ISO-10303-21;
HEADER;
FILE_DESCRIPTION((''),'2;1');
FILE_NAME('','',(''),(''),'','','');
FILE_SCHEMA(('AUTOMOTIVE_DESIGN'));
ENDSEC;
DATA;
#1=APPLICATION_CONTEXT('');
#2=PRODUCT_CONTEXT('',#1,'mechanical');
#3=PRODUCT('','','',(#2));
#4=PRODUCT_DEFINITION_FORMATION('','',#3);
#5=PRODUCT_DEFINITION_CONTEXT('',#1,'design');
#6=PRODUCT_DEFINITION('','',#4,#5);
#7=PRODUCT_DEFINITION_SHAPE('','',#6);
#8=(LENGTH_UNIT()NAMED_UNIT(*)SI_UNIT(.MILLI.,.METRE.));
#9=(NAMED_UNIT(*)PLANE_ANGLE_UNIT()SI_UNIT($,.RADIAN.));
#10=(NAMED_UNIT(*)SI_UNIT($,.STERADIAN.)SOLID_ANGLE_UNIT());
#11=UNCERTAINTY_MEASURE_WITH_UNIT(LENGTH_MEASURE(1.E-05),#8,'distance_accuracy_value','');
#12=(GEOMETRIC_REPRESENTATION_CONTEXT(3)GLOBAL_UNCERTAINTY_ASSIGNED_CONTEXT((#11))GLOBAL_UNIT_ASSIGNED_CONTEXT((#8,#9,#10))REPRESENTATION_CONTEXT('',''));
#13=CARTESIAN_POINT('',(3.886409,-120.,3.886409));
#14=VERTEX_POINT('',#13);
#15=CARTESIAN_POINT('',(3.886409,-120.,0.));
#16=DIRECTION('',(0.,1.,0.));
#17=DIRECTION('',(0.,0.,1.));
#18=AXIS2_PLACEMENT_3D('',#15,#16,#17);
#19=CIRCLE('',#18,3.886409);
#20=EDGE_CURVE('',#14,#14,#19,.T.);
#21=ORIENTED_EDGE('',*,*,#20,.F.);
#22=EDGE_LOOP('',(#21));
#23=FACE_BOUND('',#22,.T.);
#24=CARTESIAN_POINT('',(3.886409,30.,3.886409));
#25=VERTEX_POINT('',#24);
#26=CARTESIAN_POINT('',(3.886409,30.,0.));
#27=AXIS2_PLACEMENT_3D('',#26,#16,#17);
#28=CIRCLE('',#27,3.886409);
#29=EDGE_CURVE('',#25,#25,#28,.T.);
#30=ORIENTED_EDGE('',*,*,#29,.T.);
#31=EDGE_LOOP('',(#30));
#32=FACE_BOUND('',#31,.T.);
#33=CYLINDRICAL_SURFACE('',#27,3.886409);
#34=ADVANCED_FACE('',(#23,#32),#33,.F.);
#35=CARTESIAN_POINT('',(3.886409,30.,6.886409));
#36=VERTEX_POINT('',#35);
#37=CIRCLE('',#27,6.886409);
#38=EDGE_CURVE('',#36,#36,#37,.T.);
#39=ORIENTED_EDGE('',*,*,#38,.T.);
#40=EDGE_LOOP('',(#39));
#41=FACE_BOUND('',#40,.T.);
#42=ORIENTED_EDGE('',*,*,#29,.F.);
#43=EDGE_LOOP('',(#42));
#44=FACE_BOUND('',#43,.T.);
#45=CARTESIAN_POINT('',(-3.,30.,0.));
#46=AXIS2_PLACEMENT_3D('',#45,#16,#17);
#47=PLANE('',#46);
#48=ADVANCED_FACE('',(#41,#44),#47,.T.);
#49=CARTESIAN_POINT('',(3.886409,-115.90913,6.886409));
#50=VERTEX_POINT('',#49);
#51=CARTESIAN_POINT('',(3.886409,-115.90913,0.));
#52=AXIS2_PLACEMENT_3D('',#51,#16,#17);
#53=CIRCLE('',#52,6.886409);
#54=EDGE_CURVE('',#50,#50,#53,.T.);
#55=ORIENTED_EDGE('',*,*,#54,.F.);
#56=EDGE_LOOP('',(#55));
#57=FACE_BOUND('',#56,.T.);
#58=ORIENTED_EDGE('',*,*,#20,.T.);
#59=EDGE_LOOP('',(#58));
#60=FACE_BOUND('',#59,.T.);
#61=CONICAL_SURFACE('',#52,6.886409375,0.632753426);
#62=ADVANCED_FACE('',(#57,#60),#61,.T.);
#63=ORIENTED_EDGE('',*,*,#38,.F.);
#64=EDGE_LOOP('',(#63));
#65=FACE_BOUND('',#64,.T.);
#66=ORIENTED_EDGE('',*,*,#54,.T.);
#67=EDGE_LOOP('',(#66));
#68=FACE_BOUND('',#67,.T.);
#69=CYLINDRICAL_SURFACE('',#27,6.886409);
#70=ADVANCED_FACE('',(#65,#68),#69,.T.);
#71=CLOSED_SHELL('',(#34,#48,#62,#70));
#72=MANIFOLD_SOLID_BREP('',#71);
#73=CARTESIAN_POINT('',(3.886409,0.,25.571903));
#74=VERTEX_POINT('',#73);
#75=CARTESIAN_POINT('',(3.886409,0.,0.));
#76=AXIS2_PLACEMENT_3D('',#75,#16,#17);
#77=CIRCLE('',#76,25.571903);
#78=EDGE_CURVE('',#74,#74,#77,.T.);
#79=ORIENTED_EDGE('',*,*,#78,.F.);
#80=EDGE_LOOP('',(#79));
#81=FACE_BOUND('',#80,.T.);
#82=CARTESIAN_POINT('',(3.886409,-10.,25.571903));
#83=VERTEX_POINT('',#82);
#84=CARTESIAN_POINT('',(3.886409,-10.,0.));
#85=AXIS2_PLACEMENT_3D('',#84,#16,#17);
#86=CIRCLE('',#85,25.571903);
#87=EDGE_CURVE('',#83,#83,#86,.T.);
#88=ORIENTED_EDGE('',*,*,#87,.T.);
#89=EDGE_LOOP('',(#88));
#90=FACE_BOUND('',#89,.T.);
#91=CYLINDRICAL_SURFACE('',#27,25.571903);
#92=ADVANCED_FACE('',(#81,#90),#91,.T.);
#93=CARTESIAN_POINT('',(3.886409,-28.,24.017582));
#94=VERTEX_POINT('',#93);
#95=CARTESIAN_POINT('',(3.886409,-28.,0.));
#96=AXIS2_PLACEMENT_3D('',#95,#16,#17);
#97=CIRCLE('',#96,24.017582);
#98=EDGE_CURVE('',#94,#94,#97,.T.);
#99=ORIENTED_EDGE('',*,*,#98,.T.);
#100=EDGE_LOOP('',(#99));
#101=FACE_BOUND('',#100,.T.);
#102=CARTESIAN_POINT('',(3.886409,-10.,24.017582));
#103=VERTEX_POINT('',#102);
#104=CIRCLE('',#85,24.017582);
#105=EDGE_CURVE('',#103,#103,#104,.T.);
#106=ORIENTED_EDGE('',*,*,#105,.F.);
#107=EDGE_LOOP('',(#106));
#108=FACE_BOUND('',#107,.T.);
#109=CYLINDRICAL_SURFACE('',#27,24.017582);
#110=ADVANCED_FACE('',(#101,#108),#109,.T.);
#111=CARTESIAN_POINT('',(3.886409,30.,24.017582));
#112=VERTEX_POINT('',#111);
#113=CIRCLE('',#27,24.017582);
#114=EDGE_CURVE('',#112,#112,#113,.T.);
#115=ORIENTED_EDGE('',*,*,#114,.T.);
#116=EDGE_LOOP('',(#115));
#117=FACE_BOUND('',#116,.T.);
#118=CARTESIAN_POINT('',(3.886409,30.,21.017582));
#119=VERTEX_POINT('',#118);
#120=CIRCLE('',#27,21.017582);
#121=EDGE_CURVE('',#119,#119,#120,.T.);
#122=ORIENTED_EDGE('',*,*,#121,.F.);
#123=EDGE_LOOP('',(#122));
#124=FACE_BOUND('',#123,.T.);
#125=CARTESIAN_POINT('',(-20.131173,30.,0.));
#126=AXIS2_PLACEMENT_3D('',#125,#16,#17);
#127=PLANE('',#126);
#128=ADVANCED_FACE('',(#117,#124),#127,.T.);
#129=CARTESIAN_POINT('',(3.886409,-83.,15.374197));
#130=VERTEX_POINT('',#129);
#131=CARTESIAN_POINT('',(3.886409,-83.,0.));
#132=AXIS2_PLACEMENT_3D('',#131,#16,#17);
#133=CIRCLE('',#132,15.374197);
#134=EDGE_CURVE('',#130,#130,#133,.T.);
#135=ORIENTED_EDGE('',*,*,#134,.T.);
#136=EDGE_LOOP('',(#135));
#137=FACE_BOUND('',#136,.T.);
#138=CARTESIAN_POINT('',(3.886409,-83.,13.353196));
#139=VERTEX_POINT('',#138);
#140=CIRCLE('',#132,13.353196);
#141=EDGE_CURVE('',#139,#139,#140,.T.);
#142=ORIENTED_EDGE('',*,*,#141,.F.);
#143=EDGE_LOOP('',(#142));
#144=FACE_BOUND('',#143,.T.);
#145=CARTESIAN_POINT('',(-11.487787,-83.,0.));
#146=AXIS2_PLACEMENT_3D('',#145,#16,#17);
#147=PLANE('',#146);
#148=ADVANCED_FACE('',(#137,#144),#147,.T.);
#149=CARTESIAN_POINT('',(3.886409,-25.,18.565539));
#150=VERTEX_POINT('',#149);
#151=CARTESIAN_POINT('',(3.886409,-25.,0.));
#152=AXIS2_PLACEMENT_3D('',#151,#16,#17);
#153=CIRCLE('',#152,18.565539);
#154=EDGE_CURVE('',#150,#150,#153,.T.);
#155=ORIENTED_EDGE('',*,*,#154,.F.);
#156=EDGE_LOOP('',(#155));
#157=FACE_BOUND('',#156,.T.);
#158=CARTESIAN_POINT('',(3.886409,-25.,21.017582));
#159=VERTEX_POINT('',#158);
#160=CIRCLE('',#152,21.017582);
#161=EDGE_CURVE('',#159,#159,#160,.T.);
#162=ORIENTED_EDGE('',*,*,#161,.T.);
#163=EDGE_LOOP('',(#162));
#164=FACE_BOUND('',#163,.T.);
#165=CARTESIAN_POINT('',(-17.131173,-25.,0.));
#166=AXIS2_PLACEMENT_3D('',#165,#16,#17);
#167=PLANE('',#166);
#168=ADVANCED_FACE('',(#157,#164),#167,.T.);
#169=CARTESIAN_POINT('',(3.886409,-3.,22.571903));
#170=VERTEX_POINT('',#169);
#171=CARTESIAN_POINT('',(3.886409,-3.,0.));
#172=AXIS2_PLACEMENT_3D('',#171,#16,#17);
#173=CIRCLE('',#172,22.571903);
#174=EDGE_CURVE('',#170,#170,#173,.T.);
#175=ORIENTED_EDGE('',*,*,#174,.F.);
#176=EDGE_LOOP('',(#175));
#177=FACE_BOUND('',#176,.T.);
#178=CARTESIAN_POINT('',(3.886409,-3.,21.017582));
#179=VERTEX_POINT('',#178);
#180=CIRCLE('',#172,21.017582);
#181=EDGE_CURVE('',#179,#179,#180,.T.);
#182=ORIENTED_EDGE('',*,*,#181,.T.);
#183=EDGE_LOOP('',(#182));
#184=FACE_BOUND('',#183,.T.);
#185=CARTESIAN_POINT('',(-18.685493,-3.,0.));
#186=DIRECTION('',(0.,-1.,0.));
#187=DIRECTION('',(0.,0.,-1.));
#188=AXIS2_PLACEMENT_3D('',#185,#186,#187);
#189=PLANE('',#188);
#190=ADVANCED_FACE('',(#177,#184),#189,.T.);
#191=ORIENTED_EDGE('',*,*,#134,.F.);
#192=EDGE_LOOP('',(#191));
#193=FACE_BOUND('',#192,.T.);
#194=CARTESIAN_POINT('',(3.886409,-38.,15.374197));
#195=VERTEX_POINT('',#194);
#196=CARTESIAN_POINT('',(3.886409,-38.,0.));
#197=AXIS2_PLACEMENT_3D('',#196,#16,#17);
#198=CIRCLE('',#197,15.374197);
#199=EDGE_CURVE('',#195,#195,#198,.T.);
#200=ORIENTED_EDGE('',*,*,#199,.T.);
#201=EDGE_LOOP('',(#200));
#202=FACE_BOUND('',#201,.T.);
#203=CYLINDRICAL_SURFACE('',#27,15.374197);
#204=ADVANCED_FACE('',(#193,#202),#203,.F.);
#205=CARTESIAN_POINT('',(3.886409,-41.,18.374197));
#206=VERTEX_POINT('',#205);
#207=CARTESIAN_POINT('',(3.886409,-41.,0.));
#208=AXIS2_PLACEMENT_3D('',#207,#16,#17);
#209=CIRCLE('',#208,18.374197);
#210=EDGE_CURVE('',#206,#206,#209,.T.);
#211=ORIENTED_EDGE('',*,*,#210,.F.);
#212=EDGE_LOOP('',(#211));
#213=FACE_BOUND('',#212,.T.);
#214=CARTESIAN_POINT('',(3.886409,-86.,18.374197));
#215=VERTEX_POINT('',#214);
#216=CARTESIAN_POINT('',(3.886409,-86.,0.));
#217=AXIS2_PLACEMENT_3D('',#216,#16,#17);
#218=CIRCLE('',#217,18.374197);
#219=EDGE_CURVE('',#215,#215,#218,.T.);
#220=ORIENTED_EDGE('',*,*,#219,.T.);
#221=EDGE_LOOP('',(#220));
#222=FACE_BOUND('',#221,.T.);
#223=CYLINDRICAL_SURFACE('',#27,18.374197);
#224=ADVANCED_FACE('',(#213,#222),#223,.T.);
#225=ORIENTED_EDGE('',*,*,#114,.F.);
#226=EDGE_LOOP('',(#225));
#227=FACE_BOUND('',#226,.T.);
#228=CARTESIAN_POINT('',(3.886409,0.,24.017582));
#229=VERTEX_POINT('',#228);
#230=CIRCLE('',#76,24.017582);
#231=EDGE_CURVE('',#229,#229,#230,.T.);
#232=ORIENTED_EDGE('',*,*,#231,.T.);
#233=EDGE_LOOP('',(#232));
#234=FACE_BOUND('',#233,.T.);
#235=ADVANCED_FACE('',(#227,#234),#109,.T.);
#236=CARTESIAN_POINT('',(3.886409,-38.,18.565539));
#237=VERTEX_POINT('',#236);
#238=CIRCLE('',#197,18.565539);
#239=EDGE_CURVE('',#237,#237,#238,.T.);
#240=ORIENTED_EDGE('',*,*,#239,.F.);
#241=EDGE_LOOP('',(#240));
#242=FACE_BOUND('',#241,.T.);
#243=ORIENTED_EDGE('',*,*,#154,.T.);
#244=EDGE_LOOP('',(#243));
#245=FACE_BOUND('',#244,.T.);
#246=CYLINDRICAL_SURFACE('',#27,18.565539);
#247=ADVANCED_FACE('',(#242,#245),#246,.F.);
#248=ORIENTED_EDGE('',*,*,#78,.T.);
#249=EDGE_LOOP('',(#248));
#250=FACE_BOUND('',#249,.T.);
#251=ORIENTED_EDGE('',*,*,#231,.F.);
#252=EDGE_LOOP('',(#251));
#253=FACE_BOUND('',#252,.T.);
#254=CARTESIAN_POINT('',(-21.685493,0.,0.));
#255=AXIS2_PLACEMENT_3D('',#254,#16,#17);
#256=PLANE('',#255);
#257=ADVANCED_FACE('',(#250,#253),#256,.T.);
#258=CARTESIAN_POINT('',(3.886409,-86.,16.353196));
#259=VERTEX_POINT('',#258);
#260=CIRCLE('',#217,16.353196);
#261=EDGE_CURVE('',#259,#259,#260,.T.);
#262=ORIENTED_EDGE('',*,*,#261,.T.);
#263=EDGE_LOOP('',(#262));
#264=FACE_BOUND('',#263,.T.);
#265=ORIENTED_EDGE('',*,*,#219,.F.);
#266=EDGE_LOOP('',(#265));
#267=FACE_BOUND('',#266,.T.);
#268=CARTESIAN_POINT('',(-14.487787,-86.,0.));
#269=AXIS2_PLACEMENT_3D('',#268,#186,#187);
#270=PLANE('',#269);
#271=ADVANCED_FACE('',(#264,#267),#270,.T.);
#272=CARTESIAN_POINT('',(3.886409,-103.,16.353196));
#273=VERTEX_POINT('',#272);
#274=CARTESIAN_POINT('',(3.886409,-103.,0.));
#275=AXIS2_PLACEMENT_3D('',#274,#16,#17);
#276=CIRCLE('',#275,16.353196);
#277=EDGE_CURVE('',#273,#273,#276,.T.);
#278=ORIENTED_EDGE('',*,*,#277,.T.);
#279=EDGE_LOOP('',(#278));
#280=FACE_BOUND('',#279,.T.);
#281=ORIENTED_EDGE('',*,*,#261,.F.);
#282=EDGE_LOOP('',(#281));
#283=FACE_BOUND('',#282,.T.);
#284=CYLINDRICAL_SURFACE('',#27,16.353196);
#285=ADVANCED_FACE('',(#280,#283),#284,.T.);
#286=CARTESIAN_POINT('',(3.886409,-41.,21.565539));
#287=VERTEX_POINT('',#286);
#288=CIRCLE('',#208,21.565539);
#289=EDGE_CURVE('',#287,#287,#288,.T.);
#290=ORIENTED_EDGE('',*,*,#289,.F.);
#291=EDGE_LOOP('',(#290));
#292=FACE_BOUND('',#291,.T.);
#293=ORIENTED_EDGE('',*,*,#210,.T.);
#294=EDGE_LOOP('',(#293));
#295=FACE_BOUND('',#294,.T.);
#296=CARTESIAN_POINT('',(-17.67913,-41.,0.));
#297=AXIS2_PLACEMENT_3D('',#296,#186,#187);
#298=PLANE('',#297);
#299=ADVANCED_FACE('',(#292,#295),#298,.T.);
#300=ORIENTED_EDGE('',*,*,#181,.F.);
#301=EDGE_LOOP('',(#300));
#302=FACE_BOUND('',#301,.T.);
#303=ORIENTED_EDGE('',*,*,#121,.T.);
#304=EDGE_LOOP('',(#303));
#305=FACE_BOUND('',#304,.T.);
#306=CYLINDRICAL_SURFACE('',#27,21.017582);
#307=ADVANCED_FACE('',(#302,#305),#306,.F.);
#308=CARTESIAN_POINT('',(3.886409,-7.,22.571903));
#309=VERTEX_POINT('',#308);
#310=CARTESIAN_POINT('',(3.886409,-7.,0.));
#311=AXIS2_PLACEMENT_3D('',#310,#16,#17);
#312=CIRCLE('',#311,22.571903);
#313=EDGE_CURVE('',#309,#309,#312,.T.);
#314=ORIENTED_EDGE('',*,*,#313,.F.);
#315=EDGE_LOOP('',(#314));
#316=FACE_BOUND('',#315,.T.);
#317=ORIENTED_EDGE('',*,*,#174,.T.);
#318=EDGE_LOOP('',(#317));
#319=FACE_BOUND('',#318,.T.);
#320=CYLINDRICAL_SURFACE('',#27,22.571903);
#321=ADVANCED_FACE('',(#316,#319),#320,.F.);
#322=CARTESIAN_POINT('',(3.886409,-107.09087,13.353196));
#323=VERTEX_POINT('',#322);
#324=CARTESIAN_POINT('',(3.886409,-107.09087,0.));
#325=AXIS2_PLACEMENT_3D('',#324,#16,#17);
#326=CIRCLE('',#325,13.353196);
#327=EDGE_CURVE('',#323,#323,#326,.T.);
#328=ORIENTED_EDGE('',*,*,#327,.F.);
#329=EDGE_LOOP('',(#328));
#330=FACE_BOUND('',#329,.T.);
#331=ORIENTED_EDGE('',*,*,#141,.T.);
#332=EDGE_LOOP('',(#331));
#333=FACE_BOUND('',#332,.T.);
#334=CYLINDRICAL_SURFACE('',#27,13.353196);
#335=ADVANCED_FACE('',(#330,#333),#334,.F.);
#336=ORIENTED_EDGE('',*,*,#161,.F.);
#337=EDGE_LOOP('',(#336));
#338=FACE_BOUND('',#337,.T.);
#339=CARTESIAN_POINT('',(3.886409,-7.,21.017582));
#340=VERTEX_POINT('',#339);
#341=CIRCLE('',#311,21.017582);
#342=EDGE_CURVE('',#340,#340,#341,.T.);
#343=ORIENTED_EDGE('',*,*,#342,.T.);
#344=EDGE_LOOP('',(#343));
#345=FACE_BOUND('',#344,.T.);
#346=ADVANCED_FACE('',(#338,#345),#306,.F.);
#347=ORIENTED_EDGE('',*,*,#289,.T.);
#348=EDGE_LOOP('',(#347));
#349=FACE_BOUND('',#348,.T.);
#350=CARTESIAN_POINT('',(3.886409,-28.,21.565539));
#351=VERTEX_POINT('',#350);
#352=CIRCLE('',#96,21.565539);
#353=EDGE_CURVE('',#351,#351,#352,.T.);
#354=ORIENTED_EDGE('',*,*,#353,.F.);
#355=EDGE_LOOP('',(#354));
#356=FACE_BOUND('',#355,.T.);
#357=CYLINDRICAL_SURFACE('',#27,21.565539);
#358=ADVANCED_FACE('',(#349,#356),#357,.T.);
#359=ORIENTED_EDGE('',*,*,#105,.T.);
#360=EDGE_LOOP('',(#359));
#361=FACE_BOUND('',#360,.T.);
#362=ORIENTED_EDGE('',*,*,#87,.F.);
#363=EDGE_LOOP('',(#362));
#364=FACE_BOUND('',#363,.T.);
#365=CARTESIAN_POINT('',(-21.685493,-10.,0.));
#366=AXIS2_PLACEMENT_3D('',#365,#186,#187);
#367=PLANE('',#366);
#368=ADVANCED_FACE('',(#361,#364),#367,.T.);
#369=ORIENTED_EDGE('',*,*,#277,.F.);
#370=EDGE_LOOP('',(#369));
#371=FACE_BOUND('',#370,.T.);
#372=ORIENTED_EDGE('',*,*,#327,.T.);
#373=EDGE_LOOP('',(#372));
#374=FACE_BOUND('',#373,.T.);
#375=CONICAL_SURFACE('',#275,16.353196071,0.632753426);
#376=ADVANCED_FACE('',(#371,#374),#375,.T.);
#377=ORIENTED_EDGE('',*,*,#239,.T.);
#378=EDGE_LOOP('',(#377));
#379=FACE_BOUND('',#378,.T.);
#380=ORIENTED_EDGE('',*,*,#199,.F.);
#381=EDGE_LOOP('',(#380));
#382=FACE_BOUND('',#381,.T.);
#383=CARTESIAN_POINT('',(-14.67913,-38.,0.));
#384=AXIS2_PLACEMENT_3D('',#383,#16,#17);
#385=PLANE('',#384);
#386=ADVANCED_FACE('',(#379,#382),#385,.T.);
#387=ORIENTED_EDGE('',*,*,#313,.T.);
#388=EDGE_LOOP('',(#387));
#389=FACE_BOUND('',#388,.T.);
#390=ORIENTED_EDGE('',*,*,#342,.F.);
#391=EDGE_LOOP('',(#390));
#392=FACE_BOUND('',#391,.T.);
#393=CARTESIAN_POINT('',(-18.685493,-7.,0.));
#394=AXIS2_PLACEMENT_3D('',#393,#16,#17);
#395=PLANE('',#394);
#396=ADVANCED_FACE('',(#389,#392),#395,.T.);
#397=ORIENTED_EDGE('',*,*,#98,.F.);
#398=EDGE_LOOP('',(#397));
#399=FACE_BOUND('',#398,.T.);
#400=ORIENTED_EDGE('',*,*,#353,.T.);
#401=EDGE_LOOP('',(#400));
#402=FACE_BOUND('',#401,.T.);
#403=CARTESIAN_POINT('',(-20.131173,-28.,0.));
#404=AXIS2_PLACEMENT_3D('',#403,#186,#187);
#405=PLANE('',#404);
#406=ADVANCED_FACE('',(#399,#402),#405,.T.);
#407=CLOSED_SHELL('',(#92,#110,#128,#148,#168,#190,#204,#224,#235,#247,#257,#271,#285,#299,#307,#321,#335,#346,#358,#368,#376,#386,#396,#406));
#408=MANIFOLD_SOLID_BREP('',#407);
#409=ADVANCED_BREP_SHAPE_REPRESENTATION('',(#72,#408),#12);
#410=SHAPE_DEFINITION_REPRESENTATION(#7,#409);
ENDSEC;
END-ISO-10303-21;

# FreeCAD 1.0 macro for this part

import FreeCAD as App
import Part
import Sketcher

V = App.Vector
Q = App.Units.Quantity


def add_polygon(sketch, points):
    """Adds a closed chain of lines whose ends are joined by coincident constraints."""
    first, n = sketch.GeometryCount, len(points)
    for a, b in zip(points, points[1:] + points[:1]):
        sketch.addGeometry(Part.LineSegment(App.Vector(*a, 0), App.Vector(*b, 0)), False)
    for i in range(n):
        sketch.addConstraint(Sketcher.Constraint("Coincident", first + i, 2, first + (i + 1) % n, 1))

doc = App.newDocument("Part")
params = doc.addObject("Spreadsheet::Sheet", "Params")
for row, (alias, value) in enumerate([
    ("sketch1_width", "3 mm"),
    ("sketch1_height", "30 mm"),
    ("sketch1_height2", "10 mm"),
    ("sketch1_height3", "18 mm"),
    ("sketch1_height4", "13 mm"),
    ("revolution_angle", "360 deg"),
], start=1):
    params.set(f"A{row}", alias)
    params.set(f"B{row}", "=" + value)
    params.setAlias(f"B{row}", alias)

body = doc.addObject("PartDesign::Body", "Body")
body.AllowCompound = True

sketch1 = body.newObject("Sketcher::SketchObject", "Sketch")
sketch1.AttachmentSupport = (doc.getObject("XY_Plane"), [""])
sketch1.MapMode = "FlatFace"
add_polygon(sketch1, [(-20.131173, 30), (-20.131173, 0), (-21.685493, 0), (-21.685493, -10), (-20.131173, -10), (-20.131173, -28), (-17.67913, -28), (-17.67913, -41), (-14.487787, -41), (-14.487787, -86), (-12.466787, -86), (-12.466787, -103), (-9.466787, -107.09087), (-9.466787, -83), (-11.487787, -83), (-11.487787, -38), (-14.67913, -38), (-14.67913, -25), (-17.131173, -25), (-17.131173, -7), (-18.685493, -7), (-18.685493, -3), (-17.131173, -3), (-17.131173, 30)])
add_polygon(sketch1, [(0, -120), (0, 30), (-3, 30), (-3, -115.90913)])
sketch1.addGeometry(Part.LineSegment(V(3.886409, 30, 0), V(3.886409, -120, 0)), True)
sketch1.addConstraint([
    Sketcher.Constraint("Vertical", 0),
    Sketcher.Constraint("Horizontal", 1),
    Sketcher.Constraint("Vertical", 2),
    Sketcher.Constraint("Horizontal", 3),
    Sketcher.Constraint("Vertical", 4),
    Sketcher.Constraint("Horizontal", 5),
    Sketcher.Constraint("Vertical", 6),
    Sketcher.Constraint("Horizontal", 7),
    Sketcher.Constraint("Vertical", 8),
    Sketcher.Constraint("Horizontal", 9),
    Sketcher.Constraint("Vertical", 10),
    Sketcher.Constraint("Vertical", 12),
    Sketcher.Constraint("Horizontal", 13),
    Sketcher.Constraint("Vertical", 14),
    Sketcher.Constraint("Horizontal", 15),
    Sketcher.Constraint("Vertical", 16),
    Sketcher.Constraint("Horizontal", 17),
    Sketcher.Constraint("Vertical", 18),
    Sketcher.Constraint("Horizontal", 19),
    Sketcher.Constraint("Vertical", 20),
    Sketcher.Constraint("Horizontal", 21),
    Sketcher.Constraint("Vertical", 22),
    Sketcher.Constraint("Horizontal", 23),
    Sketcher.Constraint("Vertical", 24),
    Sketcher.Constraint("Horizontal", 25),
    Sketcher.Constraint("Vertical", 26),
    Sketcher.Constraint("Vertical", 28),
    Sketcher.Constraint("PointOnObject", 0, 2, -1),
    Sketcher.Constraint("PointOnObject", 24, 2, -2),
    Sketcher.Constraint("Parallel", 11, 27),
    Sketcher.Constraint("Horizontal", 23, 2, 24, 2),
    Sketcher.Constraint("Horizontal", 25, 2, 28, 1),
    Sketcher.Constraint("Horizontal", 27, 2, 28, 2),
    Sketcher.Constraint("Vertical", 0, 2, 3, 2),
    Sketcher.Constraint("Vertical", 18, 2, 21, 2),
    Sketcher.Constraint("Equal", 9, 13),
    Sketcher.Constraint("Equal", 7, 15),
    Sketcher.Constraint("Equal", 5, 17),
    Sketcher.Constraint("Equal", 3, 19),
    Sketcher.Constraint("Equal", 23, 25),
    Sketcher.Constraint("Equal", 8, 14),
    Sketcher.Constraint("Equal", 6, 16),
    Sketcher.Constraint("Equal", 4, 18),
    Sketcher.Constraint("DistanceX", 23, 2, 23, 1, Q("3 mm")),
    Sketcher.Constraint("DistanceY", 0, 2, 0, 1, Q("30 mm")),
    Sketcher.Constraint("DistanceY", 2, 2, 2, 1, Q("10 mm")),
    Sketcher.Constraint("DistanceY", 4, 2, 4, 1, Q("18 mm")),
    Sketcher.Constraint("DistanceY", 6, 2, 6, 1, Q("13 mm")),
    Sketcher.Constraint("DistanceY", 8, 2, 8, 1, Q("45 mm")),
    Sketcher.Constraint("DistanceY", 10, 2, 10, 1, Q("17 mm")),
    Sketcher.Constraint("DistanceY", 20, 1, 20, 2, Q("4 mm")),
    Sketcher.Constraint("DistanceY", 22, 1, 22, 2, Q("33 mm")),
    Sketcher.Constraint("DistanceY", 24, 1, 24, 2, Q("150 mm")),
    Sketcher.Constraint("DistanceX", 9, 1, 9, 2, Q("2.021 mm")),
    Sketcher.Constraint("DistanceX", 1, 2, 1, 1, Q("1.554321 mm")),
    Sketcher.Constraint("DistanceY", 12, 1, 12, 2, Q("24.09087 mm")),
    Sketcher.Constraint("DistanceX", 5, 1, 5, 2, Q("2.452043 mm")),
    Sketcher.Constraint("DistanceX", 7, 1, 7, 2, Q("3.191343 mm")),
    Sketcher.Constraint("DistanceX", 5, 2, -1, 1, Q("17.67913 mm")),
    Sketcher.Constraint("DistanceX", -1, 1, 28, 1, Q("3.886409 mm")),
])
sketch1.setExpression("Constraints[71]", "Params.sketch1_width")
sketch1.setExpression("Constraints[72]", "Params.sketch1_height")
sketch1.setExpression("Constraints[73]", "Params.sketch1_height2")
sketch1.setExpression("Constraints[74]", "Params.sketch1_height3")
sketch1.setExpression("Constraints[75]", "Params.sketch1_height4")
revolution = body.newObject("PartDesign::Revolution", "Revolution")
revolution.Profile = sketch1
revolution.ReferenceAxis = (sketch1, ["Axis0"])
revolution.setExpression("Angle", "Params.revolution_angle")

doc.recompute()
